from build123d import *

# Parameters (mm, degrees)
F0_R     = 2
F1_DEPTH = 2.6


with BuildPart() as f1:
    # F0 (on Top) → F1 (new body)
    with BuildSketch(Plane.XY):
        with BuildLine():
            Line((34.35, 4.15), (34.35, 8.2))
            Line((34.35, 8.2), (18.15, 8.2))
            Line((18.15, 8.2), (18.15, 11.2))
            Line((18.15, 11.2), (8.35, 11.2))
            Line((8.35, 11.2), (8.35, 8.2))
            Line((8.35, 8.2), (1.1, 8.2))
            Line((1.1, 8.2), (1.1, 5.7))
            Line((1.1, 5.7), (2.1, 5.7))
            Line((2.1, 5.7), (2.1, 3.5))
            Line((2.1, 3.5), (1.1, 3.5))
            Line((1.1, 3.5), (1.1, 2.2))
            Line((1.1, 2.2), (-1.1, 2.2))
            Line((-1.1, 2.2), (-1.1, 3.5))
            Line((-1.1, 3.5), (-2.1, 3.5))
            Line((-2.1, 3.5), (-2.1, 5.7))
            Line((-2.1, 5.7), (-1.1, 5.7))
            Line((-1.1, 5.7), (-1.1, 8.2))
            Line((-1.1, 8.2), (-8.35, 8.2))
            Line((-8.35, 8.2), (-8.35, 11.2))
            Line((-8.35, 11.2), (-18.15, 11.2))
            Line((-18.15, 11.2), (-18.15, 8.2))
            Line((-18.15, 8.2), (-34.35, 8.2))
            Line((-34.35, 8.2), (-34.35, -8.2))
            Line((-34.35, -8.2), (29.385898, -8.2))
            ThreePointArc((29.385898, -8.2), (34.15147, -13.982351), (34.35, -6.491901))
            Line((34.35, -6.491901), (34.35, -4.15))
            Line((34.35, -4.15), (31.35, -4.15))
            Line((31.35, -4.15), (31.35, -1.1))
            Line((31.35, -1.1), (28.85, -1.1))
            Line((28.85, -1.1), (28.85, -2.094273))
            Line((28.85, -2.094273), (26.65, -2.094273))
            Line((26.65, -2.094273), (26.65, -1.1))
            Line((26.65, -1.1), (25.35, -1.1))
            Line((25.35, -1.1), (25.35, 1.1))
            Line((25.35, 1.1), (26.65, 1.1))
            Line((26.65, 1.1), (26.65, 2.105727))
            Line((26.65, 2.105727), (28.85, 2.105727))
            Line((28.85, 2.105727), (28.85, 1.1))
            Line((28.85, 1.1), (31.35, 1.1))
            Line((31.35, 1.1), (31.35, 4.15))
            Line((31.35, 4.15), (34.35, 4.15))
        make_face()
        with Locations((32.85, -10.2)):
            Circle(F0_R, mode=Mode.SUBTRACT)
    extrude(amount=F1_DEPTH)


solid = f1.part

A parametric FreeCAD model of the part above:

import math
import FreeCAD as App
import Part
import Sketcher
from FreeCAD import Vector

doc = App.newDocument("Part")
body = doc.addObject("PartDesign::Body", "Body")

# Sketch on XY plane
sketch1 = body.newObject("Sketcher::SketchObject", "Sketch")
sketch1.AttachmentSupport = (doc.getObject("XY_Plane"), [""])
sketch1.MapMode = "FlatFace"
sketch1.addGeometry([
    Part.LineSegment(Vector(34.4, 4.2, 0), Vector(34.4, 8.2, 0)),  # 0
    Part.LineSegment(Vector(34.4, 8.2, 0), Vector(18.1, 8.2, 0)),  # 1
    Part.LineSegment(Vector(18.1, 8.2, 0), Vector(18.1, 11.2, 0)),  # 2
    Part.LineSegment(Vector(18.1, 11.2, 0), Vector(8.3, 11.2, 0)),  # 3
    Part.LineSegment(Vector(8.3, 11.2, 0), Vector(8.3, 8.2, 0)),  # 4
    Part.LineSegment(Vector(8.3, 8.2, 0), Vector(1.1, 8.2, 0)),  # 5
    Part.LineSegment(Vector(1.1, 8.2, 0), Vector(1.1, 5.7, 0)),  # 6
    Part.LineSegment(Vector(1.1, 5.7, 0), Vector(2.1, 5.7, 0)),  # 7
    Part.LineSegment(Vector(2.1, 5.7, 0), Vector(2.1, 3.5, 0)),  # 8
    Part.LineSegment(Vector(2.1, 3.5, 0), Vector(1.1, 3.5, 0)),  # 9
    Part.LineSegment(Vector(1.1, 3.5, 0), Vector(1.1, 2.2, 0)),  # 10
    Part.LineSegment(Vector(1.1, 2.2, 0), Vector(-1.1, 2.2, 0)),  # 11
    Part.LineSegment(Vector(-1.1, 2.2, 0), Vector(-1.1, 3.5, 0)),  # 12
    Part.LineSegment(Vector(-1.1, 3.5, 0), Vector(-2.1, 3.5, 0)),  # 13
    Part.LineSegment(Vector(-2.1, 3.5, 0), Vector(-2.1, 5.7, 0)),  # 14
    Part.LineSegment(Vector(-2.1, 5.7, 0), Vector(-1.1, 5.7, 0)),  # 15
    Part.LineSegment(Vector(-1.1, 5.7, 0), Vector(-1.1, 8.2, 0)),  # 16
    Part.LineSegment(Vector(-1.1, 8.2, 0), Vector(-8.3, 8.2, 0)),  # 17
    Part.LineSegment(Vector(-8.3, 8.2, 0), Vector(-8.3, 11.2, 0)),  # 18
    Part.LineSegment(Vector(-8.3, 11.2, 0), Vector(-18.1, 11.2, 0)),  # 19
    Part.LineSegment(Vector(-18.1, 11.2, 0), Vector(-18.1, 8.2, 0)),  # 20
    Part.LineSegment(Vector(-18.1, 8.2, 0), Vector(-34.4, 8.2, 0)),  # 21
    Part.LineSegment(Vector(-34.4, 8.2, 0), Vector(-34.4, -8.2, 0)),  # 22
    Part.LineSegment(Vector(-34.4, -8.2, 0), Vector(29.4, -8.2, 0)),  # 23
    Part.ArcOfCircle(Part.Circle(Vector(32.8, -10.2, 0), Vector(0, 0, 1), 4), math.radians(150), math.radians(428)),  # 24
    Part.LineSegment(Vector(34.4, -6.5, 0), Vector(34.4, -4.2, 0)),  # 25
    Part.LineSegment(Vector(34.4, -4.2, 0), Vector(31.4, -4.2, 0)),  # 26
    Part.LineSegment(Vector(31.4, -4.2, 0), Vector(31.4, -1.1, 0)),  # 27
    Part.LineSegment(Vector(31.4, -1.1, 0), Vector(28.9, -1.1, 0)),  # 28
    Part.LineSegment(Vector(28.9, -1.1, 0), Vector(28.9, -2.1, 0)),  # 29
    Part.LineSegment(Vector(28.9, -2.1, 0), Vector(26.6, -2.1, 0)),  # 30
    Part.LineSegment(Vector(26.6, -2.1, 0), Vector(26.6, -1.1, 0)),  # 31
    Part.LineSegment(Vector(26.6, -1.1, 0), Vector(25.4, -1.1, 0)),  # 32
    Part.LineSegment(Vector(25.4, -1.1, 0), Vector(25.4, 1.1, 0)),  # 33
    Part.LineSegment(Vector(25.4, 1.1, 0), Vector(26.6, 1.1, 0)),  # 34
    Part.LineSegment(Vector(26.6, 1.1, 0), Vector(26.6, 2.1, 0)),  # 35
    Part.LineSegment(Vector(26.6, 2.1, 0), Vector(28.9, 2.1, 0)),  # 36
    Part.LineSegment(Vector(28.9, 2.1, 0), Vector(28.9, 1.1, 0)),  # 37
    Part.LineSegment(Vector(28.9, 1.1, 0), Vector(31.4, 1.1, 0)),  # 38
    Part.LineSegment(Vector(31.4, 1.1, 0), Vector(31.4, 4.2, 0)),  # 39
    Part.LineSegment(Vector(31.4, 4.2, 0), Vector(34.4, 4.2, 0)),  # 40
    Part.Circle(Vector(32.9, -10.2, 0), Vector(0, 0, 1), 2),  # 41
], False)
sketch1.addConstraint([
    Sketcher.Constraint("Coincident", 0, 2, 1, 1),
    Sketcher.Constraint("Coincident", 1, 2, 2, 1),
    Sketcher.Constraint("Coincident", 2, 2, 3, 1),
    Sketcher.Constraint("Coincident", 3, 2, 4, 1),
    Sketcher.Constraint("Coincident", 4, 2, 5, 1),
    Sketcher.Constraint("Coincident", 5, 2, 6, 1),
    Sketcher.Constraint("Coincident", 6, 2, 7, 1),
    Sketcher.Constraint("Coincident", 7, 2, 8, 1),
    Sketcher.Constraint("Coincident", 8, 2, 9, 1),
    Sketcher.Constraint("Coincident", 9, 2, 10, 1),
    Sketcher.Constraint("Coincident", 10, 2, 11, 1),
    Sketcher.Constraint("Coincident", 11, 2, 12, 1),
    Sketcher.Constraint("Coincident", 12, 2, 13, 1),
    Sketcher.Constraint("Coincident", 13, 2, 14, 1),
    Sketcher.Constraint("Coincident", 14, 2, 15, 1),
    Sketcher.Constraint("Coincident", 15, 2, 16, 1),
    Sketcher.Constraint("Coincident", 16, 2, 17, 1),
    Sketcher.Constraint("Coincident", 17, 2, 18, 1),
    Sketcher.Constraint("Coincident", 18, 2, 19, 1),
    Sketcher.Constraint("Coincident", 19, 2, 20, 1),
    Sketcher.Constraint("Coincident", 20, 2, 21, 1),
    Sketcher.Constraint("Coincident", 21, 2, 22, 1),
    Sketcher.Constraint("Coincident", 22, 2, 23, 1),
    Sketcher.Constraint("Coincident", 23, 2, 24, 1),
    Sketcher.Constraint("Coincident", 24, 2, 25, 1),
    Sketcher.Constraint("Coincident", 25, 2, 26, 1),
    Sketcher.Constraint("Coincident", 26, 2, 27, 1),
    Sketcher.Constraint("Coincident", 27, 2, 28, 1),
    Sketcher.Constraint("Coincident", 28, 2, 29, 1),
    Sketcher.Constraint("Coincident", 29, 2, 30, 1),
    Sketcher.Constraint("Coincident", 30, 2, 31, 1),
    Sketcher.Constraint("Coincident", 31, 2, 32, 1),
    Sketcher.Constraint("Coincident", 32, 2, 33, 1),
    Sketcher.Constraint("Coincident", 33, 2, 34, 1),
    Sketcher.Constraint("Coincident", 34, 2, 35, 1),
    Sketcher.Constraint("Coincident", 35, 2, 36, 1),
    Sketcher.Constraint("Coincident", 36, 2, 37, 1),
    Sketcher.Constraint("Coincident", 37, 2, 38, 1),
    Sketcher.Constraint("Coincident", 38, 2, 39, 1),
    Sketcher.Constraint("Coincident", 39, 2, 40, 1),
    Sketcher.Constraint("Coincident", 40, 2, 0, 1),
    Sketcher.Constraint("Vertical", 0),
    Sketcher.Constraint("Horizontal", 1),
    Sketcher.Constraint("Vertical", 2),
    Sketcher.Constraint("Horizontal", 3),
    Sketcher.Constraint("Vertical", 4),
    Sketcher.Constraint("Horizontal", 5),
    Sketcher.Constraint("Vertical", 6),
    Sketcher.Constraint("Horizontal", 7),
    Sketcher.Constraint("Vertical", 8),
    Sketcher.Constraint("Horizontal", 9),
    Sketcher.Constraint("Vertical", 10),
    Sketcher.Constraint("Horizontal", 11),
    Sketcher.Constraint("Vertical", 12),
    Sketcher.Constraint("Horizontal", 13),
    Sketcher.Constraint("Vertical", 14),
    Sketcher.Constraint("Horizontal", 15),
    Sketcher.Constraint("Vertical", 16),
    Sketcher.Constraint("Horizontal", 17),
    Sketcher.Constraint("Vertical", 18),
    Sketcher.Constraint("Horizontal", 19),
    Sketcher.Constraint("Vertical", 20),
    Sketcher.Constraint("Horizontal", 21),
    Sketcher.Constraint("Vertical", 22),
    Sketcher.Constraint("Horizontal", 23),
    Sketcher.Constraint("Vertical", 25),
    Sketcher.Constraint("Horizontal", 26),
    Sketcher.Constraint("Vertical", 27),
    Sketcher.Constraint("Horizontal", 28),
    Sketcher.Constraint("Vertical", 29),
    Sketcher.Constraint("Horizontal", 30),
    Sketcher.Constraint("Vertical", 31),
    Sketcher.Constraint("Horizontal", 32),
    Sketcher.Constraint("Vertical", 33),
    Sketcher.Constraint("Horizontal", 34),
    Sketcher.Constraint("Vertical", 35),
    Sketcher.Constraint("Horizontal", 36),
    Sketcher.Constraint("Vertical", 37),
    Sketcher.Constraint("Horizontal", 38),
    Sketcher.Constraint("Vertical", 39),
    Sketcher.Constraint("Horizontal", 40),
    Sketcher.Constraint("Coincident", 41, 3, 24, 3),
    Sketcher.Constraint("Symmetric", 0, 2, 22, 2, -1, 1),
    Sketcher.Constraint("Symmetric", 9, 2, 12, 2, -2),
    Sketcher.Constraint("Symmetric", 7, 2, 14, 2, -2),
    Sketcher.Constraint("Symmetric", 5, 2, 16, 2, -2),
    Sketcher.Constraint("Symmetric", 3, 2, 18, 2, -2),
    Sketcher.Constraint("Symmetric", 1, 2, 20, 2, -2),
    Sketcher.Constraint("Symmetric", 31, 2, 34, 2, -1),
    Sketcher.Constraint("Symmetric", 28, 2, 37, 2, -1),
    Sketcher.Constraint("Symmetric", 26, 2, 39, 2, -1),
    Sketcher.Constraint("Horizontal", 1, 2, 4, 2),
    Sketcher.Constraint("Horizontal", 28, 2, 31, 2),
    Sketcher.Constraint("Vertical", 6, 2, 9, 2),
    Sketcher.Constraint("Vertical", 0, 2, 24, 2),
    Sketcher.Constraint("Equal", 11, 30),
    Sketcher.Constraint("Equal", 40, 2),
    Sketcher.Constraint("Equal", 38, 6),
    Sketcher.Constraint("Equal", 36, 8),
    Sketcher.Constraint("Equal", 34, 10),
    Sketcher.Constraint("Equal", 14, 33),
    Sketcher.Constraint("Diameter", 41, 4.0),
    Sketcher.Constraint("Radius", 24, 4.0),
    Sketcher.Constraint("DistanceX", 7, 1, 7, 2, 1.0),
    Sketcher.Constraint("DistanceX", 26, 2, 26, 1, 3.0),
    Sketcher.Constraint("DistanceX", 1, 2, 1, 1, 16.2),
    Sketcher.Constraint("DistanceX", 3, 2, 3, 1, 9.8),
    Sketcher.Constraint("DistanceX", 11, 2, 11, 1, 2.2),
    Sketcher.Constraint("DistanceX", 28, 2, 28, 1, 2.5),
    Sketcher.Constraint("DistanceX", 32, 2, 32, 1, 1.3),
    Sketcher.Constraint("DistanceY", 22, 2, 22, 1, 16.4),
    Sketcher.Constraint("DistanceY", 24, 3, 23, 2, 2.0),
    Sketcher.Constraint("DistanceX", 5, 2, 5, 1, 7.25),
    Sketcher.Constraint("DistanceY", 0, 1, 0, 2, 4.05),
    Sketcher.Constraint("DistanceX", 41, 3, 0, 2, 1.5),
    Sketcher.Constraint("DistanceY", 29, 2, 29, 1, 0.994273),
    Sketcher.Constraint("DistanceY", 35, 1, 35, 2, 1.005727),
])
pad1 = body.newObject("PartDesign::Pad", "Pad")
pad1.Profile = sketch1
pad1.Length = 2.6

doc.recompute()
